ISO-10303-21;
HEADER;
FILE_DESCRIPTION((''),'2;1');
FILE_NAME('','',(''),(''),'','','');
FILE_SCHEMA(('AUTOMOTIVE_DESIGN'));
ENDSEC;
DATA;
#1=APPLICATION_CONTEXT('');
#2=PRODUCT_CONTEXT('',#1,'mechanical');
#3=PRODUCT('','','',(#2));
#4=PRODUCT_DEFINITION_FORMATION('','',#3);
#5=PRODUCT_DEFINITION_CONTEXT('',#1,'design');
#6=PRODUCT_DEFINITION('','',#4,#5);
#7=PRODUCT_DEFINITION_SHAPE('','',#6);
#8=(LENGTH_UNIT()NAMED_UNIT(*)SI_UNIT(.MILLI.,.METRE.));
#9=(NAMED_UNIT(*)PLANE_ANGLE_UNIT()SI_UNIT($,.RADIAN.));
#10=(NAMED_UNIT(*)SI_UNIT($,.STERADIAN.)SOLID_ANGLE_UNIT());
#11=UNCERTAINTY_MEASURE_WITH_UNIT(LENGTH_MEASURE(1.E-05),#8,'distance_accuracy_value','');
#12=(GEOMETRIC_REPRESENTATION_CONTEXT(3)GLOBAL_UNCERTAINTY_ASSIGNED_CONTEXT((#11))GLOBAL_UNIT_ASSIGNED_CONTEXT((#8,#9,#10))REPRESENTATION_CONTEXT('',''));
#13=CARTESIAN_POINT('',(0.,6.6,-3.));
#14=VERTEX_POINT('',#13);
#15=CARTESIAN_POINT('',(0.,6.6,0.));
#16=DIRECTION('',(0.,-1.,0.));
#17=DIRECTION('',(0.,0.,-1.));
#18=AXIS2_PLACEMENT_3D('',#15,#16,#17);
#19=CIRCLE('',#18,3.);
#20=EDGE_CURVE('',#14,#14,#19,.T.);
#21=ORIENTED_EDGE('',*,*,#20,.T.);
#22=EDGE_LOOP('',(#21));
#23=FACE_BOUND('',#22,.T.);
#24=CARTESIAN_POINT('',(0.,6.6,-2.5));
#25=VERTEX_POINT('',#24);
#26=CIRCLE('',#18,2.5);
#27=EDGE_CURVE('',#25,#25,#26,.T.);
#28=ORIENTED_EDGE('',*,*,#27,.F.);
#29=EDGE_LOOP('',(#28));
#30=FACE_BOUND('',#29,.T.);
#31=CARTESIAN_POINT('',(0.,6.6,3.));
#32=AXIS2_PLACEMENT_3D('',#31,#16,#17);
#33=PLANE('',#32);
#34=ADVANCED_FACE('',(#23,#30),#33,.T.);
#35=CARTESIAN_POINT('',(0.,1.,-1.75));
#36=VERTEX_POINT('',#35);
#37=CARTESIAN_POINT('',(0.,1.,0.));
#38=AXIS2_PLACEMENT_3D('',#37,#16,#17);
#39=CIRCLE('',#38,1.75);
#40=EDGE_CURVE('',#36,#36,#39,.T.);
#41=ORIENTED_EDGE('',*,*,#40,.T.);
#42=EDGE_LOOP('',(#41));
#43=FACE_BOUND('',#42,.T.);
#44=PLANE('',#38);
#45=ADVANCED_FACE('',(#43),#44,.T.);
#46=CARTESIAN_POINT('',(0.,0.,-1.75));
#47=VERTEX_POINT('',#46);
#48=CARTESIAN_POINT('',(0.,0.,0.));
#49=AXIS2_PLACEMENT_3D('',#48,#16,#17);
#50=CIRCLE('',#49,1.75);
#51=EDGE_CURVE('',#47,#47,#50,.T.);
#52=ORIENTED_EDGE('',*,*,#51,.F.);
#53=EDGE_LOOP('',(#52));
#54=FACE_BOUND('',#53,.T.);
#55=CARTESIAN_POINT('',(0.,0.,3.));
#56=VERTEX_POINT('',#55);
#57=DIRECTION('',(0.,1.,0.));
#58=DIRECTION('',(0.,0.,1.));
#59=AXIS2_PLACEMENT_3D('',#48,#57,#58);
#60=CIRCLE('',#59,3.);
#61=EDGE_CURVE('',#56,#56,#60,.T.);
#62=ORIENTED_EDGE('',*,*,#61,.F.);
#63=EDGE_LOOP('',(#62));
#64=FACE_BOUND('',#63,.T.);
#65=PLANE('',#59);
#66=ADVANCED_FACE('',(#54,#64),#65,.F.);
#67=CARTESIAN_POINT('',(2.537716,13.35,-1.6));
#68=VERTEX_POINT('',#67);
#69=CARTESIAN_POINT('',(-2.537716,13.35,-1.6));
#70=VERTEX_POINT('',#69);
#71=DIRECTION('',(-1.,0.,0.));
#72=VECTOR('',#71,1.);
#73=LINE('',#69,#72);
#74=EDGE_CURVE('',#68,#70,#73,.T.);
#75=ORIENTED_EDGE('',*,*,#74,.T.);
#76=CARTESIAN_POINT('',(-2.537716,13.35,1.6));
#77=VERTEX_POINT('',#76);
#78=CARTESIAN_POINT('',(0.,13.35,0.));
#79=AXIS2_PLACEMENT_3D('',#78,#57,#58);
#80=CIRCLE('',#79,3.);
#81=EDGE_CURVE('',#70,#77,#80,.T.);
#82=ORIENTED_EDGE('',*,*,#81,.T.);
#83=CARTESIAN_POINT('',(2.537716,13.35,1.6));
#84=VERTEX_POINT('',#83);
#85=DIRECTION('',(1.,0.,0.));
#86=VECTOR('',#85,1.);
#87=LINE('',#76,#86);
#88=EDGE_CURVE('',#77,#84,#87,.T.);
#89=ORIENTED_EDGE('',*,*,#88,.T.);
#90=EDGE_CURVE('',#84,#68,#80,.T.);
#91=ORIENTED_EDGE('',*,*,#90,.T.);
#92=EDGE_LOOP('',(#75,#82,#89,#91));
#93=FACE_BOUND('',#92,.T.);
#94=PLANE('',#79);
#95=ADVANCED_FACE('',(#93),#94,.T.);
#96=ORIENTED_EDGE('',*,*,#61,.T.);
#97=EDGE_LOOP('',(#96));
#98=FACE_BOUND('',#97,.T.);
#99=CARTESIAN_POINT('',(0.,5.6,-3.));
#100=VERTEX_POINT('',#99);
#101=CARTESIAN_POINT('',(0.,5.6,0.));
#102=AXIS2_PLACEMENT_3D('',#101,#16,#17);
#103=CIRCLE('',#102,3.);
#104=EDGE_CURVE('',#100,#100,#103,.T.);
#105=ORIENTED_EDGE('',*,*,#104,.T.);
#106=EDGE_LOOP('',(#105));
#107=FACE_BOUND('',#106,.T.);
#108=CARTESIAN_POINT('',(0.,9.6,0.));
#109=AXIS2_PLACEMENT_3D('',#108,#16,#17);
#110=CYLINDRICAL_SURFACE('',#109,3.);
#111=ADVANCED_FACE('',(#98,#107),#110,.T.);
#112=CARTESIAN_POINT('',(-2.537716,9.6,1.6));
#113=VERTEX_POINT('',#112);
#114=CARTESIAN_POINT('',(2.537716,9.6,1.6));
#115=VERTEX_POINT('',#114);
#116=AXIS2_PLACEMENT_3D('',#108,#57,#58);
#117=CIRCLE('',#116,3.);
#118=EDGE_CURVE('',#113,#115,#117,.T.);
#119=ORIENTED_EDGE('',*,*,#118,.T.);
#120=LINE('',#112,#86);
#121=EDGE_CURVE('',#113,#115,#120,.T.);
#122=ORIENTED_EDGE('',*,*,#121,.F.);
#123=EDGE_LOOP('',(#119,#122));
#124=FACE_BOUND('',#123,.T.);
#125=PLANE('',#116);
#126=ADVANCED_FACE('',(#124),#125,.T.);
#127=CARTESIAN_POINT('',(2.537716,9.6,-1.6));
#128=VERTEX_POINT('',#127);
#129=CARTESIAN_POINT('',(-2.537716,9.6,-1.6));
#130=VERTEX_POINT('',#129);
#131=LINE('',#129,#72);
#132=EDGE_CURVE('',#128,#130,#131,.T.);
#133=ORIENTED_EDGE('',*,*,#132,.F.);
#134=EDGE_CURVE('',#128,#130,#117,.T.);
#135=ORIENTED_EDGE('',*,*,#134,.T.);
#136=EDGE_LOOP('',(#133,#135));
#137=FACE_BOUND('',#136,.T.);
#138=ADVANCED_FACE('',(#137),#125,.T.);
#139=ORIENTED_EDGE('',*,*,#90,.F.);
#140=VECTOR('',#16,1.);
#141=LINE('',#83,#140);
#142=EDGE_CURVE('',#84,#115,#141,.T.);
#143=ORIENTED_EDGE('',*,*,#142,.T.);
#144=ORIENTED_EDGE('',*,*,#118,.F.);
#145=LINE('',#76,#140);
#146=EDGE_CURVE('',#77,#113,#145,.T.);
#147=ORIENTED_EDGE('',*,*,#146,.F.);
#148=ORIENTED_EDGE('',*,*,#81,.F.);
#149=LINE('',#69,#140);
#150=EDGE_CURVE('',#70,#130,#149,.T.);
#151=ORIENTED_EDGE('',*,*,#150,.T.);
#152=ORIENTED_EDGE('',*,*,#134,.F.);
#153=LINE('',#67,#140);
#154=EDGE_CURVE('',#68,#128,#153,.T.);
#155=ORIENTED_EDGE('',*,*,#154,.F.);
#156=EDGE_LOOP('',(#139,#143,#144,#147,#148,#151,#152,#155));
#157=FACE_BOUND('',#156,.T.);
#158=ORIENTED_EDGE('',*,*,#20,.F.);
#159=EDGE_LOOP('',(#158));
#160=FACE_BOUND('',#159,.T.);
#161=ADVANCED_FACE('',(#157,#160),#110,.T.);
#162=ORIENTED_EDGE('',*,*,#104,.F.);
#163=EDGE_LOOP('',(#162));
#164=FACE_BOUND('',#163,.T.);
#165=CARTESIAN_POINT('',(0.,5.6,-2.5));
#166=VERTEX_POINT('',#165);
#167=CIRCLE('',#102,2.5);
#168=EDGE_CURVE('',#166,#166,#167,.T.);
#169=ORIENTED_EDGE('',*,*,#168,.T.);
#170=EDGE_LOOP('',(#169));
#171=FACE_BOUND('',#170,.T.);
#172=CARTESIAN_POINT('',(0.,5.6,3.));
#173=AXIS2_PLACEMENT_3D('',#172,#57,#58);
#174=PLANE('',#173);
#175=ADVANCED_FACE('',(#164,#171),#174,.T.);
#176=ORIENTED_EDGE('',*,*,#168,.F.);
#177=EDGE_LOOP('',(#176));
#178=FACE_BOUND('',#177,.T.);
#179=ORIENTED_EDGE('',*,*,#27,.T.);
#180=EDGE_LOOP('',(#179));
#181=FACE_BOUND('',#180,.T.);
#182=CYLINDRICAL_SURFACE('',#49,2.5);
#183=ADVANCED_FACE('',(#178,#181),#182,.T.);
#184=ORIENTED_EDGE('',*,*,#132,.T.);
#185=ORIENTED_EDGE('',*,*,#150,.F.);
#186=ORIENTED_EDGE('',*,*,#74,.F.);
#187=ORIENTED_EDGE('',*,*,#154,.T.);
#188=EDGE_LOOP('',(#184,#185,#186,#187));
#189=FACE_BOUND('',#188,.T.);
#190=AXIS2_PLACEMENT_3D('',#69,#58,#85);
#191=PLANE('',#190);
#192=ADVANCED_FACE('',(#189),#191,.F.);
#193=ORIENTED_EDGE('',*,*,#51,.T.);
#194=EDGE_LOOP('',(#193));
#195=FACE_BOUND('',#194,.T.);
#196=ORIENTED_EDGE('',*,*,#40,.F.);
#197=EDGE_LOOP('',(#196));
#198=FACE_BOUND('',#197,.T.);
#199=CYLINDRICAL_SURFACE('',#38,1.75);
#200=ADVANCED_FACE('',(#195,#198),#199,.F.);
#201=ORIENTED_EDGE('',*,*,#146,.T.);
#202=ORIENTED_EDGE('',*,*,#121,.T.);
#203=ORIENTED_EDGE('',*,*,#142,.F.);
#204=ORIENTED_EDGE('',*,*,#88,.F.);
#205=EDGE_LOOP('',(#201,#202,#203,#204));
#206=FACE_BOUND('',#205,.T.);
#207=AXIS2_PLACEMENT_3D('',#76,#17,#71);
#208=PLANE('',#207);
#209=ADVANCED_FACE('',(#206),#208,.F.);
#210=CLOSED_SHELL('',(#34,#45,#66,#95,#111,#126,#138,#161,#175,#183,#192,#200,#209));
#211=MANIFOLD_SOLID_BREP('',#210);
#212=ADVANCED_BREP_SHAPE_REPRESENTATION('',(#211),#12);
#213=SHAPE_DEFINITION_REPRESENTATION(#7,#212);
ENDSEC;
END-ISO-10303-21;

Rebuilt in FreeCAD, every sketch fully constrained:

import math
import FreeCAD as App
import Part
import Sketcher

V = App.Vector
Q = App.Units.Quantity

doc = App.newDocument("Part")
params = doc.addObject("Spreadsheet::Sheet", "Params")
for row, (alias, value) in enumerate([
    ("sketch1_diameter", "6 mm"),
    ("pad1_length", "9.6 mm"),
    ("sketch2_diameter", "3.5 mm"),
    ("pocket1_length", "1 mm"),
    ("sketch3_radius", "3 mm"),
    ("pad2_length", "3.75 mm"),
    ("sketch4_width", "1 mm"),
    ("sketch4_height", "0.5 mm"),
    ("groove_angle", "360 deg"),
], start=1):
    params.set(f"A{row}", alias)
    params.set(f"B{row}", "=" + value)
    params.setAlias(f"B{row}", alias)

body = doc.addObject("PartDesign::Body", "Body")

# Sketch on XZ plane
sketch1 = body.newObject("Sketcher::SketchObject", "Sketch")
sketch1.AttachmentSupport = (doc.getObject("XZ_Plane"), [""])
sketch1.MapMode = "FlatFace"
sketch1.addGeometry(Part.Circle(V(0, 0, 0), V(0, 0, 1), 3), False)
sketch1.addConstraint([
    Sketcher.Constraint("Coincident", 0, 3, -1, 1),
    Sketcher.Constraint("Diameter", 0, Q("6 mm")),
])
sketch1.setExpression("Constraints[1]", "Params.sketch1_diameter")
pad1 = body.newObject("PartDesign::Pad", "Pad")
pad1.Profile = sketch1
pad1.setExpression("Length", "Params.pad1_length")
pad1.Reversed = True

# Sketch on XZ plane
sketch2 = body.newObject("Sketcher::SketchObject", "Sketch001")
sketch2.AttachmentSupport = (doc.getObject("XZ_Plane"), [""])
sketch2.MapMode = "FlatFace"
sketch2.addGeometry(Part.Circle(V(0, 0, 0), V(0, 0, 1), 1.8), False)
sketch2.addConstraint([
    Sketcher.Constraint("Coincident", 0, 3, -1, 1),
    Sketcher.Constraint("Diameter", 0, Q("3.5 mm")),
])
sketch2.setExpression("Constraints[1]", "Params.sketch2_diameter")
pocket1 = body.newObject("PartDesign::Pocket", "Pocket")
pocket1.Profile = sketch2
pocket1.setExpression("Length", "Params.pocket1_length")

# Sketch on XZ plane
sketch3 = body.newObject("Sketcher::SketchObject", "Sketch002")
sketch3.AttachmentSupport = (doc.getObject("XZ_Plane"), [""])
sketch3.MapMode = "FlatFace"
sketch3.AttachmentOffset = App.Placement(V(0, 0, -9.6), App.Rotation())
sketch3.addGeometry([
    Part.LineSegment(V(-2.5, 1.6, 0), V(2.5, 1.6, 0)),
    Part.ArcOfCircle(Part.Circle(V(0, 0, 0), V(0, 0, 1), 3), math.radians(-32), math.radians(32)),
    Part.LineSegment(V(2.5, -1.6, 0), V(-2.5, -1.6, 0)),
    Part.ArcOfCircle(Part.Circle(V(0, 0, 0), V(0, 0, 1), 3), math.radians(148), math.radians(212)),
], False)
sketch3.addConstraint([
    Sketcher.Constraint("Coincident", 0, 2, 1, 2),
    Sketcher.Constraint("Coincident", 1, 1, 2, 1),
    Sketcher.Constraint("Coincident", 2, 2, 3, 2),
    Sketcher.Constraint("Coincident", 3, 1, 0, 1),
    Sketcher.Constraint("Horizontal", 0),
    Sketcher.Constraint("Horizontal", 2),
    Sketcher.Constraint("Coincident", 1, 3, -1, 1),
    Sketcher.Constraint("Coincident", 3, 3, -1, 1),
    Sketcher.Constraint("Equal", 1, 3),
    Sketcher.Constraint("Vertical", 0, 2, 1, 1),
    Sketcher.Constraint("Radius", 1, Q("3 mm")),
    Sketcher.Constraint("DistanceY", -1, 1, 0, 2, Q("1.6 mm")),
])
sketch3.setExpression("Constraints[10]", "Params.sketch3_radius")
pad2 = body.newObject("PartDesign::Pad", "Pad001")
pad2.Profile = sketch3
pad2.setExpression("Length", "Params.pad2_length")
pad2.Reversed = True

# Sketch on YZ plane
sketch4 = body.newObject("Sketcher::SketchObject", "Sketch003")
sketch4.AttachmentSupport = (doc.getObject("YZ_Plane"), [""])
sketch4.MapMode = "FlatFace"
sketch4.addGeometry([
    Part.LineSegment(V(6.6, 3, 0), V(5.6, 3, 0)),
    Part.LineSegment(V(5.6, 3, 0), V(5.6, 2.5, 0)),
    Part.LineSegment(V(5.6, 2.5, 0), V(6.6, 2.5, 0)),
    Part.LineSegment(V(6.6, 2.5, 0), V(6.6, 3, 0)),
], False)
sketch4.addConstraint([
    Sketcher.Constraint("Coincident", 0, 2, 1, 1),
    Sketcher.Constraint("Coincident", 1, 2, 2, 1),
    Sketcher.Constraint("Coincident", 2, 2, 3, 1),
    Sketcher.Constraint("Coincident", 3, 2, 0, 1),
    Sketcher.Constraint("Horizontal", 0),
    Sketcher.Constraint("Vertical", 1),
    Sketcher.Constraint("Horizontal", 2),
    Sketcher.Constraint("Vertical", 3),
    Sketcher.Constraint("DistanceX", 0, 2, 0, 1, Q("1 mm")),
    Sketcher.Constraint("DistanceY", 1, 2, 1, 1, Q("0.5 mm")),
    Sketcher.Constraint("DistanceY", -1, 1, 0, 2, Q("3 mm")),
    Sketcher.Constraint("DistanceX", -1, 1, 0, 2, Q("5.6 mm")),
])
sketch4.setExpression("Constraints[8]", "Params.sketch4_width")
sketch4.setExpression("Constraints[9]", "Params.sketch4_height")
groove = body.newObject("PartDesign::Groove", "Groove")
groove.Profile = sketch4
groove.ReferenceAxis = (sketch4, ["H_Axis"])
groove.setExpression("Angle", "Params.groove_angle")

doc.recompute()
